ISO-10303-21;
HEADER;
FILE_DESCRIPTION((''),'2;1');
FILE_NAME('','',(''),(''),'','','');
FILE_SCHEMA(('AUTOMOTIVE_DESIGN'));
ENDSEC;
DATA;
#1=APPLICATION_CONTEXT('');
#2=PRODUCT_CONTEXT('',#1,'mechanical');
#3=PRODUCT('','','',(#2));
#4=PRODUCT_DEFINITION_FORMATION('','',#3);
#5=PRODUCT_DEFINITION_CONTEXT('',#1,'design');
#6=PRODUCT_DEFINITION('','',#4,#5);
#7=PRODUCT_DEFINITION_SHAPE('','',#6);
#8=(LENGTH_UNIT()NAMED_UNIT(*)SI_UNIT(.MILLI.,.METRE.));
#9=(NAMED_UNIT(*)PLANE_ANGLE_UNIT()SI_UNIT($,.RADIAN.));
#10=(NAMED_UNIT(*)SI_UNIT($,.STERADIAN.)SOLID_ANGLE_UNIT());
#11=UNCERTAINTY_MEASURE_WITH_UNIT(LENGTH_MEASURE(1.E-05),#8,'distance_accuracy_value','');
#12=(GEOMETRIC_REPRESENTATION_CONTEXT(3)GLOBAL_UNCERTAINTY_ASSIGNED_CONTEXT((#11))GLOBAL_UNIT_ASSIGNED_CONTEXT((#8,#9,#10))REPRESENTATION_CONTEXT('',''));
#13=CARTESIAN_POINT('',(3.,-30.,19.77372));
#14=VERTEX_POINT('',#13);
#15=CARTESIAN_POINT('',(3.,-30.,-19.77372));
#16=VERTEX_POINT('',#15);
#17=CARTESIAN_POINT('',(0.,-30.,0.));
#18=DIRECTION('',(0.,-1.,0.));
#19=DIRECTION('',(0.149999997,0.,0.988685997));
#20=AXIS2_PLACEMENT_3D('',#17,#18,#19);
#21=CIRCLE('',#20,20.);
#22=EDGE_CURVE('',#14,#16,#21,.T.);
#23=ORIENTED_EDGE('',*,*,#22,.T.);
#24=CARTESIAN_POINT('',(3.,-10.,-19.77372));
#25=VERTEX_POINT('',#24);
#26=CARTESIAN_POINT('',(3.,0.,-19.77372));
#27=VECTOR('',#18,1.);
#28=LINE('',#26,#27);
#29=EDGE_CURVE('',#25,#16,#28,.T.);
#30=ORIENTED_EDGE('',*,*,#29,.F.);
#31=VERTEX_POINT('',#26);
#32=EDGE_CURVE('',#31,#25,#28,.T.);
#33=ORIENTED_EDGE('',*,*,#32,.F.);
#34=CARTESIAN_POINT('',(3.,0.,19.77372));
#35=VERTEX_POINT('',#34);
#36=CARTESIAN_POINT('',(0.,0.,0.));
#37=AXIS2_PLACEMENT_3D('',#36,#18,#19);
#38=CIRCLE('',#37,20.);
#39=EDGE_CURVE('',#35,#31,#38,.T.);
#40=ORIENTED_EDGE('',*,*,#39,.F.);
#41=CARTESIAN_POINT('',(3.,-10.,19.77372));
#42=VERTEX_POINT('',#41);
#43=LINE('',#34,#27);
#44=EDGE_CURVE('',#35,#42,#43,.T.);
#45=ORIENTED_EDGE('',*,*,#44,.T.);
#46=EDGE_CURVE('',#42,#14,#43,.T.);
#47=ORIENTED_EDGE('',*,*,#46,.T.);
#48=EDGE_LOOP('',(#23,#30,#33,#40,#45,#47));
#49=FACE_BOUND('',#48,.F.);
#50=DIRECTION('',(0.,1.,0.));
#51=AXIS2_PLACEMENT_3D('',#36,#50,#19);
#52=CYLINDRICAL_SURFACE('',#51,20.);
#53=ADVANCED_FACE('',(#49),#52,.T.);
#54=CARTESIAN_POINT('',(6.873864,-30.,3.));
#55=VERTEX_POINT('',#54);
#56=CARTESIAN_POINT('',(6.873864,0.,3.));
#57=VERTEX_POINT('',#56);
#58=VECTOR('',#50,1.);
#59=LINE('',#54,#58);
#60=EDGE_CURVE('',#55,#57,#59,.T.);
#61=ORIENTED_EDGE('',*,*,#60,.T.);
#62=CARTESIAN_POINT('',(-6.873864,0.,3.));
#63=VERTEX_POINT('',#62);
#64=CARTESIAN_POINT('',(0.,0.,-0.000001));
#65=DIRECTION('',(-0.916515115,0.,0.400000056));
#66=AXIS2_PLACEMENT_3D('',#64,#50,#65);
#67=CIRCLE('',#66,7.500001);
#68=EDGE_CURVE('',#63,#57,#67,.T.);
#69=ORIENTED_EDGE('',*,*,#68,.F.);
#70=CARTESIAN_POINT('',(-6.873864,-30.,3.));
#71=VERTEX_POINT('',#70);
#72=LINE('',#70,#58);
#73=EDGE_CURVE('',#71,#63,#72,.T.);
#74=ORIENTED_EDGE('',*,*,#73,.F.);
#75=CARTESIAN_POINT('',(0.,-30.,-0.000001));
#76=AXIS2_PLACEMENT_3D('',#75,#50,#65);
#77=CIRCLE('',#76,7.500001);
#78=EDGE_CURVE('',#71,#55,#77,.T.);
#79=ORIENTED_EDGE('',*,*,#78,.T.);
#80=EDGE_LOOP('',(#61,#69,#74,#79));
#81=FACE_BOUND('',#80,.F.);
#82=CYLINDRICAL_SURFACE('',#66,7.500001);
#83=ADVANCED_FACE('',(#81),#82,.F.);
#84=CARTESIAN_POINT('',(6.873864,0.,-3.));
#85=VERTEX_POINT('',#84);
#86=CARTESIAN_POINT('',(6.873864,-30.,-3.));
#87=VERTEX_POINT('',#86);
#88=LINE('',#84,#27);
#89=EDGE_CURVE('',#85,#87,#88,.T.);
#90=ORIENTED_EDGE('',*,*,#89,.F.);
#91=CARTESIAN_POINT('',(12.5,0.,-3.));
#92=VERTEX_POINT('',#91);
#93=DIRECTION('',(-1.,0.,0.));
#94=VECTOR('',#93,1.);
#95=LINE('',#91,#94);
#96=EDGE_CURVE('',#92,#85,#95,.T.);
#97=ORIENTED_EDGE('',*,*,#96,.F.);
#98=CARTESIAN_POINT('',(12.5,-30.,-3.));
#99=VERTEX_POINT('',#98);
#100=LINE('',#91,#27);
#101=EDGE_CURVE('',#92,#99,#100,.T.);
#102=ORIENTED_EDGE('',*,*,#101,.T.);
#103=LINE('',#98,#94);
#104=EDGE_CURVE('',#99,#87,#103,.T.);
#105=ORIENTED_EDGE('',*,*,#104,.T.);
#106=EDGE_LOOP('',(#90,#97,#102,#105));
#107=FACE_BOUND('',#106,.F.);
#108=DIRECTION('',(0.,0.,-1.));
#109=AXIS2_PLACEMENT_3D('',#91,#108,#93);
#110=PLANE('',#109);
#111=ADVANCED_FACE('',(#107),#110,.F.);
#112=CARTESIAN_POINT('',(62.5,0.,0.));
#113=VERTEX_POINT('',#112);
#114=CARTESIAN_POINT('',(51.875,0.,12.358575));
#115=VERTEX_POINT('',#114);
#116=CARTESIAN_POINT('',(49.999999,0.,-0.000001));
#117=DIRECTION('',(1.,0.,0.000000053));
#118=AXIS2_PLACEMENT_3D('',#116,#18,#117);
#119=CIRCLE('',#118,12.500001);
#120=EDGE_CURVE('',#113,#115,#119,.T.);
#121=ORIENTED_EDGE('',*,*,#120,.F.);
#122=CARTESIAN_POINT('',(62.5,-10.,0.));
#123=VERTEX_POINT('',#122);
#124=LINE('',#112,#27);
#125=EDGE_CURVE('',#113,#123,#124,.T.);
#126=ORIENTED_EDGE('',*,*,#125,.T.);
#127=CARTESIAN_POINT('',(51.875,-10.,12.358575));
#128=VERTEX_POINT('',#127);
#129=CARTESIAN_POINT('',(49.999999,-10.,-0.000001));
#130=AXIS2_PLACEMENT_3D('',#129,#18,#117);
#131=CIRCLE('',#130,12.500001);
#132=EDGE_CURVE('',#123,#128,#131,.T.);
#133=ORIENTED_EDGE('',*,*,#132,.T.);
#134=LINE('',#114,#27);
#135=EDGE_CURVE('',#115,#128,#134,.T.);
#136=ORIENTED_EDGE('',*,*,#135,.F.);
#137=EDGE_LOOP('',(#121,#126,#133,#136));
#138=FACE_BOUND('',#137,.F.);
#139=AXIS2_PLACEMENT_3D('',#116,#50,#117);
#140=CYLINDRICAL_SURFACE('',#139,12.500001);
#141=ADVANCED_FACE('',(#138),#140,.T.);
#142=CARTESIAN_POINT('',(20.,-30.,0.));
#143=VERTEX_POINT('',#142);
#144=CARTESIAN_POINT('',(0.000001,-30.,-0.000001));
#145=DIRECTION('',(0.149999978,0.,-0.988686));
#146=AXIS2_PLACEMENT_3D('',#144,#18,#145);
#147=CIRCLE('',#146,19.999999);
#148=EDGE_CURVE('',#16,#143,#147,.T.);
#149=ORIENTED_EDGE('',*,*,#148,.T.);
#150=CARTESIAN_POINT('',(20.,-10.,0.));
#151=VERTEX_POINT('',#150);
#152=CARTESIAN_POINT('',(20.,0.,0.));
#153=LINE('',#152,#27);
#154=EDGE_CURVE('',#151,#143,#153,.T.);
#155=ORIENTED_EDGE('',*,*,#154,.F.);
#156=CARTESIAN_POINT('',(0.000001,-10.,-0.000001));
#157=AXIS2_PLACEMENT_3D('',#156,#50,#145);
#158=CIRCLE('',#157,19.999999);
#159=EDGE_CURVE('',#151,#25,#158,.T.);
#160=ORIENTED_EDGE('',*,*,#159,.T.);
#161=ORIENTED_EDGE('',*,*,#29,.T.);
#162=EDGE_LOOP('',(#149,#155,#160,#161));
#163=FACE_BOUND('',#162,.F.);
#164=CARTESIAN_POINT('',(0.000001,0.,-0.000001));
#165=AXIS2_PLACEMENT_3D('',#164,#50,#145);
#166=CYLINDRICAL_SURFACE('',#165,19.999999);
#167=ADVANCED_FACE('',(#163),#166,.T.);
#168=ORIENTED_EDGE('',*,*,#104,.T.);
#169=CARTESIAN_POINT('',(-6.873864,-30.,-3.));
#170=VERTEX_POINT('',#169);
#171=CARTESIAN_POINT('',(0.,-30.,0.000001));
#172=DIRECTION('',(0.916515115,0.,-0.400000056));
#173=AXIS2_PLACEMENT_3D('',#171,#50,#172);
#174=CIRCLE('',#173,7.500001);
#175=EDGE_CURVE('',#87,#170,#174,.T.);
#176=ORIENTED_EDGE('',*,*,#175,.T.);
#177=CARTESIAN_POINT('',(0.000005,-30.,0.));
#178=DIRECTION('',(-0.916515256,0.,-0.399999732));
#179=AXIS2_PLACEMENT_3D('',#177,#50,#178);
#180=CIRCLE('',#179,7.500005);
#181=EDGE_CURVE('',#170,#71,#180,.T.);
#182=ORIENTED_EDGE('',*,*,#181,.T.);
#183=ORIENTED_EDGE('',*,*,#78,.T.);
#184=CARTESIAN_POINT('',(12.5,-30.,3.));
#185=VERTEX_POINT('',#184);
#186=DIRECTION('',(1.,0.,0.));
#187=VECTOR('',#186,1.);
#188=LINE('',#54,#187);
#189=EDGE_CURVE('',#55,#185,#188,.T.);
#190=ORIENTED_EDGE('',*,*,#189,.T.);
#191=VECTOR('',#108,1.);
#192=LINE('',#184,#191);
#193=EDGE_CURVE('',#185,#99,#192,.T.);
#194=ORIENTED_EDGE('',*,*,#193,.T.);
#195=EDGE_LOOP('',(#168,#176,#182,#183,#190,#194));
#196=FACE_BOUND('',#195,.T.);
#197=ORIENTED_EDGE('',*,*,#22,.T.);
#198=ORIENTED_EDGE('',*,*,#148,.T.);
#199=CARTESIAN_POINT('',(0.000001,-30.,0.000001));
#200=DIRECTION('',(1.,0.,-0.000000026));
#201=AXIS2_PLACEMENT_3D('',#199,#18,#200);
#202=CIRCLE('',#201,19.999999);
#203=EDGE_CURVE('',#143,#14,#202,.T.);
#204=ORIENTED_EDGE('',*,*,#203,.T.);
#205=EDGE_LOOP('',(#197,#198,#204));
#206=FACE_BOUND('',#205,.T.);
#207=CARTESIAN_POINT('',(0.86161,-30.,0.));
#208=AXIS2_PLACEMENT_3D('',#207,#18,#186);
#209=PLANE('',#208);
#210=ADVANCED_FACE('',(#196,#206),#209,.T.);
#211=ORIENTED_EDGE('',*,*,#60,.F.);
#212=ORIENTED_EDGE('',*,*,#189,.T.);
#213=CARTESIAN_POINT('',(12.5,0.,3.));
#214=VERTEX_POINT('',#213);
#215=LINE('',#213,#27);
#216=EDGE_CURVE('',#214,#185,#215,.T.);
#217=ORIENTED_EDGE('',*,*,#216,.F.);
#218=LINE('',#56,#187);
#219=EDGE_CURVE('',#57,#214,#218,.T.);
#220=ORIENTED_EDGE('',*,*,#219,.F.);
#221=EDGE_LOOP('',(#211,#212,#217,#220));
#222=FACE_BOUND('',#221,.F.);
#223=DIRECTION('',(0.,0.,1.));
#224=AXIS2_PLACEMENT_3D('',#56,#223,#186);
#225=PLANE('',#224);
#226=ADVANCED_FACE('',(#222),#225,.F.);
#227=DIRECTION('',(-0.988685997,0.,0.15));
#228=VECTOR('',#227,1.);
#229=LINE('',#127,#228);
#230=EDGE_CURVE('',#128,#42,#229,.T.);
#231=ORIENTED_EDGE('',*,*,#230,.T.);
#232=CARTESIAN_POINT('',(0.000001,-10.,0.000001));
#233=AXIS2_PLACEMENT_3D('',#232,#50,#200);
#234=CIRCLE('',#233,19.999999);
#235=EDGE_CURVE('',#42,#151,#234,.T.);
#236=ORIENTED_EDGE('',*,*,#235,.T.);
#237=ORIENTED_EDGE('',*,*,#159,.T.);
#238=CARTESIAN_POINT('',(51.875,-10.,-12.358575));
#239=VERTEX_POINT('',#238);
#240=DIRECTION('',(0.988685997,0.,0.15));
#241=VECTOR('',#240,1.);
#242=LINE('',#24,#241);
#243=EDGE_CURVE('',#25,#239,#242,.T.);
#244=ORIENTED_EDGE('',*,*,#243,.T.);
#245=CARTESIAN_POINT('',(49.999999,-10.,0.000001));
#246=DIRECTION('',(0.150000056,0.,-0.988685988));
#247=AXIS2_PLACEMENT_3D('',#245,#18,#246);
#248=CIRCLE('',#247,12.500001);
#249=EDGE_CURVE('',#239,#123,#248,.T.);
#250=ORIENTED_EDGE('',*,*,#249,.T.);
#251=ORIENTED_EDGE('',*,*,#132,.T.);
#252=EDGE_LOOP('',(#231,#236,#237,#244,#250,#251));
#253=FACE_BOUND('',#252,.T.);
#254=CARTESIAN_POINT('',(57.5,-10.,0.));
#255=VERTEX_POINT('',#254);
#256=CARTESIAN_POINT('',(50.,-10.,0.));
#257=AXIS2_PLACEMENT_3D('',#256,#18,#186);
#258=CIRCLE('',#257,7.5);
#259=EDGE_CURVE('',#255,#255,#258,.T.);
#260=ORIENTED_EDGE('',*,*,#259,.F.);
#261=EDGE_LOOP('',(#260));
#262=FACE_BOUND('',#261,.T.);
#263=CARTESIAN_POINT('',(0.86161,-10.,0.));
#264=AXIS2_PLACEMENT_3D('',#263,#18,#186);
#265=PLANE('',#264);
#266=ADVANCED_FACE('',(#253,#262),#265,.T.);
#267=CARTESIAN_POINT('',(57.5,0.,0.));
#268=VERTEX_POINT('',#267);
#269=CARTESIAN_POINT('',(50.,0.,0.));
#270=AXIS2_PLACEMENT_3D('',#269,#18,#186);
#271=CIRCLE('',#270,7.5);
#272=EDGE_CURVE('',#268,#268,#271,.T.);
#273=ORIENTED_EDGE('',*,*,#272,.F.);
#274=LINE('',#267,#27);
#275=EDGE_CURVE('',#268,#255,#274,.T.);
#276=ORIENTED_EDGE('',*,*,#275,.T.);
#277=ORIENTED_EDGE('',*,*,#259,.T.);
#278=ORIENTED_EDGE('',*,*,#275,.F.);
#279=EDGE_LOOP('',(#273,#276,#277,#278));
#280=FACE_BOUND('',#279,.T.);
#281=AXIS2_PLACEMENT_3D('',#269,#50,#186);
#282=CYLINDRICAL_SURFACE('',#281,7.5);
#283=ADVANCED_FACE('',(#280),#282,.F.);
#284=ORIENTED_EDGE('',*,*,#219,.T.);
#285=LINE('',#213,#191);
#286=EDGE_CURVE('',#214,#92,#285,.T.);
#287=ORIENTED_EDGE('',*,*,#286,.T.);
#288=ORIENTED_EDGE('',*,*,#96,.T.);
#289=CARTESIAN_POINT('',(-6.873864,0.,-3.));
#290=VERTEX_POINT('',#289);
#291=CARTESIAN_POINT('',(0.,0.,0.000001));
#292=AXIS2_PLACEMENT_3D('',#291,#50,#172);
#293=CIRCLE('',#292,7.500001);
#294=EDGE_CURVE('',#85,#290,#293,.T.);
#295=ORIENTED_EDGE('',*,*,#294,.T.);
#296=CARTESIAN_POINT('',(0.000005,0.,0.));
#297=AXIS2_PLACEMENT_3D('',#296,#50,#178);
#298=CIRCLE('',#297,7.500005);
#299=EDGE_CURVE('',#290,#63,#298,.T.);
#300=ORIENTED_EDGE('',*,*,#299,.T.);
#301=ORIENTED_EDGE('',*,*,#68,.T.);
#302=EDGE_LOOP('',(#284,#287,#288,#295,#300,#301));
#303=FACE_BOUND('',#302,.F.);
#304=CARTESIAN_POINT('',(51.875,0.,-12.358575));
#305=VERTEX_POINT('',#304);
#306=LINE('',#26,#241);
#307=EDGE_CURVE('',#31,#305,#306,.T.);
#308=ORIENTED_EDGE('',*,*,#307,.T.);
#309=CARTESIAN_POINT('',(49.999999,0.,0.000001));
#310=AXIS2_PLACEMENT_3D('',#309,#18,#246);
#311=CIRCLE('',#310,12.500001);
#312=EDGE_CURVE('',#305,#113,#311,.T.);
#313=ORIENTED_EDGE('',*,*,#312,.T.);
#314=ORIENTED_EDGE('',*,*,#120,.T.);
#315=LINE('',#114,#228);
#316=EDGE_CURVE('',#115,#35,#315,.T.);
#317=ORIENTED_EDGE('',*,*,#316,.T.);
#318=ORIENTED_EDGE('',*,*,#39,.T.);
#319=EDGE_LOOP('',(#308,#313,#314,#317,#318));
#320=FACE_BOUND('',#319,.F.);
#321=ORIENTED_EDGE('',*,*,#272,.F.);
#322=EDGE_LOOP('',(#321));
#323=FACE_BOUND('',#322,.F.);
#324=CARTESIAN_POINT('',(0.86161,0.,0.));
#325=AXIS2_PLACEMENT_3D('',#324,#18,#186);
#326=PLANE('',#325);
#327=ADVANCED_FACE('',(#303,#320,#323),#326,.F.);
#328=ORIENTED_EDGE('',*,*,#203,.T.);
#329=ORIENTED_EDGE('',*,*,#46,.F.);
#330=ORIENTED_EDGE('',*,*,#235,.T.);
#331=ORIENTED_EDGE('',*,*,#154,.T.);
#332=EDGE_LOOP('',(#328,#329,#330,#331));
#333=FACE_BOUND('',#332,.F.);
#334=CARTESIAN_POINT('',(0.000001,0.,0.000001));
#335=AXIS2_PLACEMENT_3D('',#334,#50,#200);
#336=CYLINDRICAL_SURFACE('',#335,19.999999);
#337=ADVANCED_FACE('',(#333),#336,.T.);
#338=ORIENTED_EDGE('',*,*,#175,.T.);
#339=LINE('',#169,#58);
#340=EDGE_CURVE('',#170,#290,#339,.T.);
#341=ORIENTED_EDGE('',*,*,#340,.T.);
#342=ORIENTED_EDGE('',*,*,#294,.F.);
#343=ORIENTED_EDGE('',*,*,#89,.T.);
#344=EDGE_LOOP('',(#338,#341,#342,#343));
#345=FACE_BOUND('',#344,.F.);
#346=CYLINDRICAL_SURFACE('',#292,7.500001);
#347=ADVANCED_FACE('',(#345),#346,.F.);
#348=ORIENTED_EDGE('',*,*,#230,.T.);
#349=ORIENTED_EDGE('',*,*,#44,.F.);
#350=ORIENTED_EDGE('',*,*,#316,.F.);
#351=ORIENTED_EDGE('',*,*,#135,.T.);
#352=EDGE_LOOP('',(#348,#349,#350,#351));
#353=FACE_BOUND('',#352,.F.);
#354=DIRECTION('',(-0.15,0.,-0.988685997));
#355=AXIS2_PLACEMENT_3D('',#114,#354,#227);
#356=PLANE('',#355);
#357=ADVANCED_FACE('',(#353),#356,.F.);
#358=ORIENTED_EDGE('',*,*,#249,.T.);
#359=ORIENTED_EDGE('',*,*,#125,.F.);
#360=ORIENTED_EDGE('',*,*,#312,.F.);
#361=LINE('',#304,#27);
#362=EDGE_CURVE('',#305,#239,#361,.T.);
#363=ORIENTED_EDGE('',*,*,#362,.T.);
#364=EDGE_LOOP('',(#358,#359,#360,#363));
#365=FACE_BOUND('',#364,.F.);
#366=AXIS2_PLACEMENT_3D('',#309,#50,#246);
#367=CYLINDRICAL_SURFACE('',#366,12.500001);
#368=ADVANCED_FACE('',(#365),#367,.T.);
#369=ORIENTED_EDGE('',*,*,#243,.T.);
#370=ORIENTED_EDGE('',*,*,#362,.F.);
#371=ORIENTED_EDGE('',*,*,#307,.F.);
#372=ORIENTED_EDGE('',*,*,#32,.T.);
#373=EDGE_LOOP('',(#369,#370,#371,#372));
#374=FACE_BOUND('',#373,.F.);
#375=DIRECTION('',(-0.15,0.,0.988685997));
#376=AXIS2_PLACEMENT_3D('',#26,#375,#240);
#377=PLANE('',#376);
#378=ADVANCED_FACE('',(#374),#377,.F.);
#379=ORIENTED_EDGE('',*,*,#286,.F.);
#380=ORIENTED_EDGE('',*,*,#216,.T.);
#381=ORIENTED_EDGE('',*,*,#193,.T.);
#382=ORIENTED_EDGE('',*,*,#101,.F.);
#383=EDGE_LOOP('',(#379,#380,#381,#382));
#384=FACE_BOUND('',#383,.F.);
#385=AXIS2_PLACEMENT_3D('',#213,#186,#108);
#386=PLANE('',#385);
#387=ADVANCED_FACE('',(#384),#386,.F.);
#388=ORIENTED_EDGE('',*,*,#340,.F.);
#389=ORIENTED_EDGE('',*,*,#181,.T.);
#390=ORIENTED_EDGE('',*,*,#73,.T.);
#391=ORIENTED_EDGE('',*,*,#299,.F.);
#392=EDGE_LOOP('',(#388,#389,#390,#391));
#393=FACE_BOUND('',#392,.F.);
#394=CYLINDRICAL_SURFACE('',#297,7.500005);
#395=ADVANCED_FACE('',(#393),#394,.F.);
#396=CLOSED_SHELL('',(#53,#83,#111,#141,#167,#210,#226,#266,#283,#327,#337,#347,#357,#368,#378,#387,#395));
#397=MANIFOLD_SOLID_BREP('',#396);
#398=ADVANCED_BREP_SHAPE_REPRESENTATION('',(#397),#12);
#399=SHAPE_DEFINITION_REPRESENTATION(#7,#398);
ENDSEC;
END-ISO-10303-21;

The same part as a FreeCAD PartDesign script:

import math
import FreeCAD as App
import Part
import Sketcher

V = App.Vector

doc = App.newDocument("Part")
body = doc.addObject("PartDesign::Body", "Body")

# Sketch on XZ plane
sketch1 = body.newObject("Sketcher::SketchObject", "Sketch")
sketch1.AttachmentSupport = (doc.getObject("XZ_Plane"), [""])
sketch1.MapMode = "FlatFace"
sketch1.addGeometry(Part.ArcOfCircle(Part.Circle(V(0, 0, 0), V(0, 0, 1), 20), math.radians(81), math.radians(279)), False)
sketch1.addGeometry(Part.LineSegment(V(3, -20, 0), V(52, -12, 0)), False)
sketch1.addGeometry(Part.ArcOfCircle(Part.Circle(V(50, 0, 0), V(0, 0, 1), 13), math.radians(-81), math.radians(0)), False)
sketch1.addGeometry(Part.ArcOfCircle(Part.Circle(V(50, 0, 0), V(0, 0, 1), 13), math.radians(0), math.radians(81)), False)
sketch1.addGeometry(Part.LineSegment(V(52, 12, 0), V(3, 20, 0)), False)
sketch1.addGeometry(Part.LineSegment(V(7, 3, 0), V(12, 3, 0)), False)
sketch1.addGeometry(Part.LineSegment(V(12, 3, 0), V(12, -3, 0)), False)
sketch1.addGeometry(Part.LineSegment(V(12, -3, 0), V(7, -3, 0)), False)
sketch1.addGeometry(Part.ArcOfCircle(Part.Circle(V(0, 0, 0), V(0, 0, 1), 8), math.radians(-156), math.radians(-24)), False)
sketch1.addGeometry(Part.ArcOfCircle(Part.Circle(V(0, 0, 0), V(0, 0, 1), 8), math.radians(156), math.radians(204)), False)
sketch1.addGeometry(Part.ArcOfCircle(Part.Circle(V(0, 0, 0), V(0, 0, 1), 8), math.radians(24), math.radians(156)), False)
sketch1.addGeometry(Part.Circle(V(50, 0, 0), V(0, 0, 1), 8), False)
sketch1.addConstraint(Sketcher.Constraint("Tangent", 0, 2, 1, 1))
sketch1.addConstraint(Sketcher.Constraint("Tangent", 1, 2, 2, 1))
sketch1.addConstraint(Sketcher.Constraint("Tangent", 2, 2, 3, 1))
sketch1.addConstraint(Sketcher.Constraint("Tangent", 3, 2, 4, 1))
sketch1.addConstraint(Sketcher.Constraint("Tangent", 4, 2, 0, 1))
sketch1.addConstraint(Sketcher.Constraint("Coincident", 5, 2, 6, 1))
sketch1.addConstraint(Sketcher.Constraint("Coincident", 6, 2, 7, 1))
sketch1.addConstraint(Sketcher.Constraint("Coincident", 7, 2, 8, 2))
sketch1.addConstraint(Sketcher.Constraint("Tangent", 8, 1, 9, 2))
sketch1.addConstraint(Sketcher.Constraint("Tangent", 9, 1, 10, 2))
sketch1.addConstraint(Sketcher.Constraint("Coincident", 10, 1, 5, 1))
sketch1.addConstraint(Sketcher.Constraint("Horizontal", 5))
sketch1.addConstraint(Sketcher.Constraint("Vertical", 6))
sketch1.addConstraint(Sketcher.Constraint("Horizontal", 7))
sketch1.addConstraint(Sketcher.Constraint("Coincident", 0, 3, -1, 1))
sketch1.addConstraint(Sketcher.Constraint("Coincident", 8, 3, -1, 1))
sketch1.addConstraint(Sketcher.Constraint("Coincident", 10, 3, -1, 1))
sketch1.addConstraint(Sketcher.Constraint("Coincident", 11, 3, 2, 3))
sketch1.addConstraint(Sketcher.Constraint("Equal", 2, 3))
sketch1.addConstraint(Sketcher.Constraint("Equal", 10, 11))
sketch1.addConstraint(Sketcher.Constraint("PointOnObject", 2, 3, -1))
sketch1.addConstraint(Sketcher.Constraint("PointOnObject", 2, 2, -1))
sketch1.addConstraint(Sketcher.Constraint("Horizontal", 7, 2, 8, 1))
sketch1.addConstraint(Sketcher.Constraint("Horizontal", 5, 2, 9, 1))
sketch1.addConstraint(Sketcher.Constraint("Vertical", 8, 1, 9, 1))
sketch1.addConstraint(Sketcher.Constraint("Diameter", 11, 15.0))
sketch1.addConstraint(Sketcher.Constraint("Radius", 0, 20.0))
sketch1.addConstraint(Sketcher.Constraint("Radius", 2, 12.500001))
sketch1.addConstraint(Sketcher.Constraint("DistanceY", 6, 2, 6, 1, 6.0))
sketch1.addConstraint(Sketcher.Constraint("DistanceX", -1, 1, 2, 3, 49.999999))
sketch1.addConstraint(Sketcher.Constraint("DistanceX", -1, 1, 5, 2, 12.5))
pad1 = body.newObject("PartDesign::Pad", "Pad")
pad1.Profile = sketch1
pad1.Length = 10

# Sketch on XZ plane
sketch2 = body.newObject("Sketcher::SketchObject", "Sketch001")
sketch2.AttachmentSupport = (doc.getObject("XZ_Plane"), [""])
sketch2.MapMode = "FlatFace"
sketch2.addGeometry(Part.ArcOfCircle(Part.Circle(V(0, 0, 0), V(0, 0, 1), 20), math.radians(-81), math.radians(0)), False)
sketch2.addGeometry(Part.ArcOfCircle(Part.Circle(V(0, 0, 0), V(0, 0, 1), 20), math.radians(0), math.radians(81)), False)
sketch2.addGeometry(Part.ArcOfCircle(Part.Circle(V(0, 0, 0), V(0, 0, 1), 20), math.radians(81), math.radians(279)), False)
sketch2.addGeometry(Part.LineSegment(V(7, 3, 0), V(12, 3, 0)), False)
sketch2.addGeometry(Part.LineSegment(V(12, 3, 0), V(12, -3, 0)), False)
sketch2.addGeometry(Part.LineSegment(V(12, -3, 0), V(7, -3, 0)), False)
sketch2.addGeometry(Part.ArcOfCircle(Part.Circle(V(0, 0, 0), V(0, 0, 1), 8), math.radians(-156), math.radians(-24)), False)
sketch2.addGeometry(Part.ArcOfCircle(Part.Circle(V(0, 0, 0), V(0, 0, 1), 8), math.radians(156), math.radians(204)), False)
sketch2.addGeometry(Part.ArcOfCircle(Part.Circle(V(0, 0, 0), V(0, 0, 1), 8), math.radians(24), math.radians(156)), False)
sketch2.addConstraint(Sketcher.Constraint("Tangent", 0, 2, 1, 1))
sketch2.addConstraint(Sketcher.Constraint("Tangent", 1, 2, 2, 1))
sketch2.addConstraint(Sketcher.Constraint("Tangent", 2, 2, 0, 1))
sketch2.addConstraint(Sketcher.Constraint("Coincident", 3, 2, 4, 1))
sketch2.addConstraint(Sketcher.Constraint("Coincident", 4, 2, 5, 1))
sketch2.addConstraint(Sketcher.Constraint("Coincident", 5, 2, 6, 2))
sketch2.addConstraint(Sketcher.Constraint("Tangent", 6, 1, 7, 2))
sketch2.addConstraint(Sketcher.Constraint("Tangent", 7, 1, 8, 2))
sketch2.addConstraint(Sketcher.Constraint("Coincident", 8, 1, 3, 1))
sketch2.addConstraint(Sketcher.Constraint("Horizontal", 3))
sketch2.addConstraint(Sketcher.Constraint("Vertical", 4))
sketch2.addConstraint(Sketcher.Constraint("Horizontal", 5))
sketch2.addConstraint(Sketcher.Constraint("Coincident", 0, 3, -1, 1))
sketch2.addConstraint(Sketcher.Constraint("Coincident", 6, 3, -1, 1))
sketch2.addConstraint(Sketcher.Constraint("Coincident", 8, 3, -1, 1))
sketch2.addConstraint(Sketcher.Constraint("PointOnObject", 0, 2, -1))
sketch2.addConstraint(Sketcher.Constraint("Horizontal", 5, 2, 6, 1))
sketch2.addConstraint(Sketcher.Constraint("Horizontal", 3, 2, 7, 1))
sketch2.addConstraint(Sketcher.Constraint("Vertical", 1, 2, 2, 2))
sketch2.addConstraint(Sketcher.Constraint("Vertical", 6, 1, 7, 1))
sketch2.addConstraint(Sketcher.Constraint("Radius", 0, 19.999999))
sketch2.addConstraint(Sketcher.Constraint("Radius", 6, 7.500001))
sketch2.addConstraint(Sketcher.Constraint("DistanceY", 4, 2, 4, 1, 6.0))
sketch2.addConstraint(Sketcher.Constraint("DistanceX", -1, 1, 1, 2, 3.0))
sketch2.addConstraint(Sketcher.Constraint("DistanceX", -1, 1, 3, 2, 12.5))
pad2 = body.newObject("PartDesign::Pad", "Pad001")
pad2.Profile = sketch2
pad2.Length = 30

doc.recompute()
